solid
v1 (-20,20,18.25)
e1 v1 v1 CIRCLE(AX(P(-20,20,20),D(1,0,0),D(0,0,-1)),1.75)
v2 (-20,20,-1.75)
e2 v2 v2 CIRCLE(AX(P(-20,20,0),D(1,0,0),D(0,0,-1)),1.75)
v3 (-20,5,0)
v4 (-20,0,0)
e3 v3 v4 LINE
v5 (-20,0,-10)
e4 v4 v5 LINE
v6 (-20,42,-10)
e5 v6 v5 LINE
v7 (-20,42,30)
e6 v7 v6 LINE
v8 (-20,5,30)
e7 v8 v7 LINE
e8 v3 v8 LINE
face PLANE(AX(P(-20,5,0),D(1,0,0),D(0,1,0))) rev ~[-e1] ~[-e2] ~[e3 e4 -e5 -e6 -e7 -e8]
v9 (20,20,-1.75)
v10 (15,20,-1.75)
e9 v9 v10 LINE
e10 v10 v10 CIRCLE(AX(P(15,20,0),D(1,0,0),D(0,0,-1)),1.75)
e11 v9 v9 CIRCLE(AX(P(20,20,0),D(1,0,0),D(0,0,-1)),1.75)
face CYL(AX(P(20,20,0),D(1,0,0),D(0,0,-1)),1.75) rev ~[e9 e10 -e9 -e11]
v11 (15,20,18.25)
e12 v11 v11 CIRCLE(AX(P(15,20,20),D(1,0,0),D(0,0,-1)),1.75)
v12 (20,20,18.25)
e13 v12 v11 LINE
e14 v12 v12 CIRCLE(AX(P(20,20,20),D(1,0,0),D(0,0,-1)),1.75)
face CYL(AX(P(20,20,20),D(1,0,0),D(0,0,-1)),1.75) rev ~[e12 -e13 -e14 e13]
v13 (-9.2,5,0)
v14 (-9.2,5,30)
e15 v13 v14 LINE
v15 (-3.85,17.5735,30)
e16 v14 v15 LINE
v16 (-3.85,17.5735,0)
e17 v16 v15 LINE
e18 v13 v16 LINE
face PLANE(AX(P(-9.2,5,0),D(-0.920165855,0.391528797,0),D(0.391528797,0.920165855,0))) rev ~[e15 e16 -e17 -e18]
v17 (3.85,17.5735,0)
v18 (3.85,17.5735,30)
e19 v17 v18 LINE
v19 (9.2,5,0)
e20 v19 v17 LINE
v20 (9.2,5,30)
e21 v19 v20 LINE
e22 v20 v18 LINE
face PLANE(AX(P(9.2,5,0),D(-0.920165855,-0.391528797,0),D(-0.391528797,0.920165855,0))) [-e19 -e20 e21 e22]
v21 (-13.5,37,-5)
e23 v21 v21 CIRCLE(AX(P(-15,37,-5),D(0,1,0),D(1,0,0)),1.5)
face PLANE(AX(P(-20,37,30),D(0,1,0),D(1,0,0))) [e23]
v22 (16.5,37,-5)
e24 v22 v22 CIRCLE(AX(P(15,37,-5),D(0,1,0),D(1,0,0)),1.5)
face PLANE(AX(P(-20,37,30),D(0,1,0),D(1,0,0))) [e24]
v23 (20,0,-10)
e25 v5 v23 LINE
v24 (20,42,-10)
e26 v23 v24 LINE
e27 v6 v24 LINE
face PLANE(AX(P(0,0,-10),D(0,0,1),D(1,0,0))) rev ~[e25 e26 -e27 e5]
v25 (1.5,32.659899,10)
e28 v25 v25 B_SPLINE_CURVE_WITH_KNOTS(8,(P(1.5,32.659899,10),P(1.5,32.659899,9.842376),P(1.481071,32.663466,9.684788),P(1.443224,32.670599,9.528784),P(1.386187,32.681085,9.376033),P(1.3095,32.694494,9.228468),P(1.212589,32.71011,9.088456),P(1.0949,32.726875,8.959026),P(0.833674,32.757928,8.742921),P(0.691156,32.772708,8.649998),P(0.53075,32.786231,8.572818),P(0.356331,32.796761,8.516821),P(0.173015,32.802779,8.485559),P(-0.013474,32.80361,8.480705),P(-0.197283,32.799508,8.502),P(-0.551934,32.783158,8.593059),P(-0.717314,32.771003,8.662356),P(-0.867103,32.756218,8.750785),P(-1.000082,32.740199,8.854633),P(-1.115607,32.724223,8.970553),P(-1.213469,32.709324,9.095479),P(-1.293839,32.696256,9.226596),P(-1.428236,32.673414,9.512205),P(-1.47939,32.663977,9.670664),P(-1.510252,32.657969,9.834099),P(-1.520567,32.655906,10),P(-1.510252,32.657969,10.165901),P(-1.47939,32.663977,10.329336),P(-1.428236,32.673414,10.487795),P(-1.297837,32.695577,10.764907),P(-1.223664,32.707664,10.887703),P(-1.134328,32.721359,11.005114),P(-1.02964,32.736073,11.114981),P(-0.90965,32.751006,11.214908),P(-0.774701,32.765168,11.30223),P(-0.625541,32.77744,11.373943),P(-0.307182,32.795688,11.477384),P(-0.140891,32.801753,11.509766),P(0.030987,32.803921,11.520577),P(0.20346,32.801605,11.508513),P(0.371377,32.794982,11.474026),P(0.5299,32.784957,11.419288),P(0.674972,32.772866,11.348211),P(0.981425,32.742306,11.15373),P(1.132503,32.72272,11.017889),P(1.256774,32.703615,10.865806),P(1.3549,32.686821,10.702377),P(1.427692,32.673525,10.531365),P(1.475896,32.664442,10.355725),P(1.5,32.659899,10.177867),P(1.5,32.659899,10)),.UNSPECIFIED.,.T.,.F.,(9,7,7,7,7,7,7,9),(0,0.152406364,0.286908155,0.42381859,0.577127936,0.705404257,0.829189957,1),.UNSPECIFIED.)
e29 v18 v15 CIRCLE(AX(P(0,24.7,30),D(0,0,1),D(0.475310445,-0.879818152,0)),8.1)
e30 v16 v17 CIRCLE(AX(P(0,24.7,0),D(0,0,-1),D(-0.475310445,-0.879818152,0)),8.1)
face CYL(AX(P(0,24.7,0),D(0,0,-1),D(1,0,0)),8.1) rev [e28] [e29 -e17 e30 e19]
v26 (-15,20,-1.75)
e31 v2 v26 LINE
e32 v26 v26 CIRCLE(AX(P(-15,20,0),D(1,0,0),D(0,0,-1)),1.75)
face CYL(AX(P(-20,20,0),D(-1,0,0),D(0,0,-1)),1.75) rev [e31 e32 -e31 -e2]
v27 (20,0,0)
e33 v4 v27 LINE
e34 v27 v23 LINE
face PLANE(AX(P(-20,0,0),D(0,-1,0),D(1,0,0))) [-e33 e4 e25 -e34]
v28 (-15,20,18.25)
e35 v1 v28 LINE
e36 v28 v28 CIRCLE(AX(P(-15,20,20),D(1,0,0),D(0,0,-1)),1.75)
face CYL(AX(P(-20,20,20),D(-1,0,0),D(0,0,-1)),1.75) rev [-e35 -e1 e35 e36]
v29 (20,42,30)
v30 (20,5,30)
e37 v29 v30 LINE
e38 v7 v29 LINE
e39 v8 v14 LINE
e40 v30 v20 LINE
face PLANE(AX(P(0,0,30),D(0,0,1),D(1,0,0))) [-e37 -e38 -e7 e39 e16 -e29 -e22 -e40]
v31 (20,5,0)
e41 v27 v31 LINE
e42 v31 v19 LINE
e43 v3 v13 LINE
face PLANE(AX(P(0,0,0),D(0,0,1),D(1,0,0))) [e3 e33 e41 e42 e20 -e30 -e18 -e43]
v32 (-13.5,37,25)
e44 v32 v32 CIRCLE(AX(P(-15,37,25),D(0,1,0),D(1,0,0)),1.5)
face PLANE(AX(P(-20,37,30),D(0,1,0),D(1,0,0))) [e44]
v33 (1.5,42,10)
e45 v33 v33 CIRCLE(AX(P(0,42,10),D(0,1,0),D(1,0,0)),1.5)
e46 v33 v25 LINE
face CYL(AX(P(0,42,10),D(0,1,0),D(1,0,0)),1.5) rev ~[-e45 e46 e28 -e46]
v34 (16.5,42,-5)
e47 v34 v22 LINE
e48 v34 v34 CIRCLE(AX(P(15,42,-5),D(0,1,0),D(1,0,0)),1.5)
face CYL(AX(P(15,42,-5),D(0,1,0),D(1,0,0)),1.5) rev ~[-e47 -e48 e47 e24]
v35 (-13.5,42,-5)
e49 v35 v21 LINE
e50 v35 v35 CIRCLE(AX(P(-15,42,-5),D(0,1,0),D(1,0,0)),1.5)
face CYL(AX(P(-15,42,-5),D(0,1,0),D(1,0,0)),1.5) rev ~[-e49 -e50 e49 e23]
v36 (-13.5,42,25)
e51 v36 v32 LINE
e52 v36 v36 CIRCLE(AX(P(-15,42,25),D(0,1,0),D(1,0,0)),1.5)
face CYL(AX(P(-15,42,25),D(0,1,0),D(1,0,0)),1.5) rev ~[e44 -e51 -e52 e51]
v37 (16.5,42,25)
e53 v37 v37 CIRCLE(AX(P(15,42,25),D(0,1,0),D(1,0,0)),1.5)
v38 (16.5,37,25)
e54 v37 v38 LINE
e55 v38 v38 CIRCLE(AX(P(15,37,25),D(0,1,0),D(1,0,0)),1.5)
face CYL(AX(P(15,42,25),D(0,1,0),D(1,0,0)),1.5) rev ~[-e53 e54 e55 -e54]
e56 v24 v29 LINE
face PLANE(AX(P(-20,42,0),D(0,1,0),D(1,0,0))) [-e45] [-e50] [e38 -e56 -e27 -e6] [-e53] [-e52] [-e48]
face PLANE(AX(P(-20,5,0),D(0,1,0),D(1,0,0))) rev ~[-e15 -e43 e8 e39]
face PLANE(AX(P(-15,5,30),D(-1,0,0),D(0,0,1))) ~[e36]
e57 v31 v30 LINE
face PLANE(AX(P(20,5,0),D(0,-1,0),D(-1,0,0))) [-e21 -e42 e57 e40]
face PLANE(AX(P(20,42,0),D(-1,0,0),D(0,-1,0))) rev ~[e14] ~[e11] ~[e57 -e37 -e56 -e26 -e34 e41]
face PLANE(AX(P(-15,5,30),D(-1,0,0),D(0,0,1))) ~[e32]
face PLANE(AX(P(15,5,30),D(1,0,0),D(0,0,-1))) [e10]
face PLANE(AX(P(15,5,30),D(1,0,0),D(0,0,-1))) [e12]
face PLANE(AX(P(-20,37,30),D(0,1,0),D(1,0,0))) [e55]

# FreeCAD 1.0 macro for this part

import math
import FreeCAD as App
import Part
import Sketcher
from FreeCAD import Vector
Q = App.Units.Quantity

doc = App.newDocument("Part")
params = doc.addObject("Spreadsheet::Sheet", "Params")
for row, (alias, value) in enumerate([
    ("sketch1_radius", "8.1 mm"),
    ("sketch1_width", "40 mm"),
    ("pad1_length", "30 mm"),
    ("sketch2_width", "40 mm"),
    ("sketch2_height", "42 mm"),
    ("pad2_length", "10 mm"),
    ("sketch3_diameter", "3 mm"),
    ("pocket1_length", "5 mm"),
    ("sketch4_diameter", "3 mm"),
    ("sketch5_diameter", "3.5 mm"),
    ("pocket3_length", "5 mm"),
], start=1):
    params.set(f"A{row}", alias)
    params.set(f"B{row}", "=" + value)
    params.setAlias(f"B{row}", alias)

body = doc.addObject("PartDesign::Body", "Body")

# Sketch on XY plane
sketch1 = body.newObject("Sketcher::SketchObject", "Sketch")
sketch1.AttachmentSupport = (doc.getObject("XY_Plane"), [""])
sketch1.MapMode = "FlatFace"
sketch1.addGeometry([
    Part.ArcOfCircle(Part.Circle(Vector(0, 25, 0), Vector(0, 0, 1), 8), math.radians(-62), math.radians(242)),  # 0
    Part.LineSegment(Vector(4, 18, 0), Vector(9, 5, 0)),  # 1
    Part.LineSegment(Vector(9, 5, 0), Vector(20, 5, 0)),  # 2
    Part.LineSegment(Vector(20, 5, 0), Vector(20, 42, 0)),  # 3
    Part.LineSegment(Vector(20, 42, 0), Vector(-20, 42, 0)),  # 4
    Part.LineSegment(Vector(-20, 42, 0), Vector(-20, 5, 0)),  # 5
    Part.LineSegment(Vector(-20, 5, 0), Vector(-9, 5, 0)),  # 6
    Part.LineSegment(Vector(-9, 5, 0), Vector(-4, 18, 0)),  # 7
], False)
sketch1.addConstraint([
    Sketcher.Constraint("Coincident", 0, 1, 1, 1),
    Sketcher.Constraint("Coincident", 1, 2, 2, 1),
    Sketcher.Constraint("Coincident", 2, 2, 3, 1),
    Sketcher.Constraint("Coincident", 3, 2, 4, 1),
    Sketcher.Constraint("Coincident", 4, 2, 5, 1),
    Sketcher.Constraint("Coincident", 5, 2, 6, 1),
    Sketcher.Constraint("Coincident", 6, 2, 7, 1),
    Sketcher.Constraint("Coincident", 7, 2, 0, 2),
    Sketcher.Constraint("Horizontal", 2),
    Sketcher.Constraint("Vertical", 3),
    Sketcher.Constraint("Horizontal", 4),
    Sketcher.Constraint("Vertical", 5),
    Sketcher.Constraint("Horizontal", 6),
    Sketcher.Constraint("Symmetric", 2, 2, 5, 2, -2),
    Sketcher.Constraint("Symmetric", 0, 1, 7, 2, -2),
    Sketcher.Constraint("Equal", 2, 6),
    Sketcher.Constraint("Radius", 0, Q("8.1 mm")),
    Sketcher.Constraint("DistanceX", 4, 2, 4, 1, Q("40 mm")),
    Sketcher.Constraint("DistanceY", -1, 1, 1, 2, Q("5 mm")),
    Sketcher.Constraint("DistanceY", -1, 1, 3, 2, Q("42 mm")),
    Sketcher.Constraint("DistanceY", 1, 2, 0, 3, Q("19.7 mm")),
    Sketcher.Constraint("DistanceX", 6, 2, 1, 2, Q("18.4 mm")),
    Sketcher.Constraint("DistanceX", 7, 2, 0, 1, Q("7.7 mm")),
])
sketch1.setExpression("Constraints[16]", "Params.sketch1_radius")
sketch1.setExpression("Constraints[17]", "Params.sketch1_width")
pad1 = body.newObject("PartDesign::Pad", "Pad")
pad1.Profile = sketch1
pad1.setExpression("Length", "Params.pad1_length")

# Sketch on XY plane
sketch2 = body.newObject("Sketcher::SketchObject", "Sketch001")
sketch2.AttachmentSupport = (doc.getObject("XY_Plane"), [""])
sketch2.MapMode = "FlatFace"
sketch2.addGeometry([
    Part.LineSegment(Vector(-20, 42, 0), Vector(-20, 0, 0)),
    Part.LineSegment(Vector(-20, 0, 0), Vector(20, 0, 0)),
    Part.LineSegment(Vector(20, 0, 0), Vector(20, 42, 0)),
    Part.LineSegment(Vector(20, 42, 0), Vector(-20, 42, 0)),
], False)
sketch2.addConstraint([
    Sketcher.Constraint("Coincident", 0, 2, 1, 1),
    Sketcher.Constraint("Coincident", 1, 2, 2, 1),
    Sketcher.Constraint("Coincident", 2, 2, 3, 1),
    Sketcher.Constraint("Coincident", 3, 2, 0, 1),
    Sketcher.Constraint("Vertical", 0),
    Sketcher.Constraint("Horizontal", 1),
    Sketcher.Constraint("Vertical", 2),
    Sketcher.Constraint("Horizontal", 3),
    Sketcher.Constraint("Symmetric", 0, 2, 1, 2, -1, 1),
    Sketcher.Constraint("DistanceX", 1, 1, 1, 2, Q("40 mm")),
    Sketcher.Constraint("DistanceY", 0, 2, 0, 1, Q("42 mm")),
])
sketch2.setExpression("Constraints[9]", "Params.sketch2_width")
sketch2.setExpression("Constraints[10]", "Params.sketch2_height")
pad2 = body.newObject("PartDesign::Pad", "Pad001")
pad2.Profile = sketch2
pad2.setExpression("Length", "Params.pad2_length")
pad2.Reversed = True

# Sketch on XZ plane
sketch3 = body.newObject("Sketcher::SketchObject", "Sketch002")
sketch3.AttachmentSupport = (doc.getObject("XZ_Plane"), [""])
sketch3.MapMode = "FlatFace"
sketch3.AttachmentOffset = App.Placement(Vector(0, 0, -42), App.Rotation())
sketch3.addGeometry([
    Part.Circle(Vector(15, 25, 0), Vector(0, 0, 1), 1.5),
    Part.Circle(Vector(-15, 25, 0), Vector(0, 0, 1), 1.5),
    Part.Circle(Vector(-15, -5, 0), Vector(0, 0, 1), 1.5),
    Part.Circle(Vector(15, -5, 0), Vector(0, 0, 1), 1.5),
], False)
sketch3.addConstraint([
    Sketcher.Constraint("Equal", 0, 1),
    Sketcher.Constraint("Equal", 1, 2),
    Sketcher.Constraint("Equal", 2, 3),
    Sketcher.Constraint("Symmetric", 0, 3, 1, 3, -2),
    Sketcher.Constraint("Symmetric", 2, 3, 3, 3, -2),
    Sketcher.Constraint("Vertical", 1, 3, 2, 3),
    Sketcher.Constraint("Diameter", 0, Q("3 mm")),
    Sketcher.Constraint("DistanceX", 1, 3, 0, 3, Q("30 mm")),
    Sketcher.Constraint("DistanceY", 2, 3, 1, 3, Q("30 mm")),
    Sketcher.Constraint("DistanceY", -1, 1, 0, 3, Q("25 mm")),
])
sketch3.setExpression("Constraints[6]", "Params.sketch3_diameter")
pocket1 = body.newObject("PartDesign::Pocket", "Pocket")
pocket1.Profile = sketch3
pocket1.setExpression("Length", "Params.pocket1_length")
pocket1.Reversed = True

# Sketch on XZ plane
sketch4 = body.newObject("Sketcher::SketchObject", "Sketch003")
sketch4.AttachmentSupport = (doc.getObject("XZ_Plane"), [""])
sketch4.MapMode = "FlatFace"
sketch4.AttachmentOffset = App.Placement(Vector(0, 0, -42), App.Rotation())
sketch4.addGeometry(Part.Circle(Vector(0, 10, 0), Vector(0, 0, 1), 1.5), False)
sketch4.addConstraint([
    Sketcher.Constraint("PointOnObject", 0, 3, -2),
    Sketcher.Constraint("Diameter", 0, Q("3 mm")),
    Sketcher.Constraint("DistanceY", -1, 1, 0, 3, Q("10 mm")),
])
sketch4.setExpression("Constraints[1]", "Params.sketch4_diameter")
pocket2 = body.newObject("PartDesign::Pocket", "Pocket001")
pocket2.Profile = sketch4
pocket2.Type = "ThroughAll"
pocket2.Reversed = True

# Sketch on YZ plane
sketch5 = body.newObject("Sketcher::SketchObject", "Sketch004")
sketch5.AttachmentSupport = (doc.getObject("YZ_Plane"), [""])
sketch5.MapMode = "FlatFace"
sketch5.AttachmentOffset = App.Placement(Vector(0, 0, 20), App.Rotation())
sketch5.addGeometry([
    Part.Circle(Vector(20, 20, 0), Vector(0, 0, 1), 1.8),
    Part.Circle(Vector(20, 0, 0), Vector(0, 0, 1), 1.8),
], False)
sketch5.addConstraint([
    Sketcher.Constraint("Equal", 0, 1),
    Sketcher.Constraint("PointOnObject", 1, 3, -1),
    Sketcher.Constraint("Vertical", 0, 3, 1, 3),
    Sketcher.Constraint("Diameter", 0, Q("3.5 mm")),
    Sketcher.Constraint("DistanceX", -1, 1, 0, 3, Q("20 mm")),
    Sketcher.Constraint("DistanceY", -1, 1, 0, 3, Q("20 mm")),
])
sketch5.setExpression("Constraints[3]", "Params.sketch5_diameter")
pocket3 = body.newObject("PartDesign::Pocket", "Pocket002")
pocket3.Profile = sketch5
pocket3.setExpression("Length", "Params.pocket3_length")
doc.recompute()

mirrored = body.newObject("PartDesign::Mirrored", "Mirrored")
mirrored.Originals = [pocket3]
mirrored.MirrorPlane = (doc.getObject("YZ_Plane"), [""])
body.Tip = mirrored

doc.recompute()
